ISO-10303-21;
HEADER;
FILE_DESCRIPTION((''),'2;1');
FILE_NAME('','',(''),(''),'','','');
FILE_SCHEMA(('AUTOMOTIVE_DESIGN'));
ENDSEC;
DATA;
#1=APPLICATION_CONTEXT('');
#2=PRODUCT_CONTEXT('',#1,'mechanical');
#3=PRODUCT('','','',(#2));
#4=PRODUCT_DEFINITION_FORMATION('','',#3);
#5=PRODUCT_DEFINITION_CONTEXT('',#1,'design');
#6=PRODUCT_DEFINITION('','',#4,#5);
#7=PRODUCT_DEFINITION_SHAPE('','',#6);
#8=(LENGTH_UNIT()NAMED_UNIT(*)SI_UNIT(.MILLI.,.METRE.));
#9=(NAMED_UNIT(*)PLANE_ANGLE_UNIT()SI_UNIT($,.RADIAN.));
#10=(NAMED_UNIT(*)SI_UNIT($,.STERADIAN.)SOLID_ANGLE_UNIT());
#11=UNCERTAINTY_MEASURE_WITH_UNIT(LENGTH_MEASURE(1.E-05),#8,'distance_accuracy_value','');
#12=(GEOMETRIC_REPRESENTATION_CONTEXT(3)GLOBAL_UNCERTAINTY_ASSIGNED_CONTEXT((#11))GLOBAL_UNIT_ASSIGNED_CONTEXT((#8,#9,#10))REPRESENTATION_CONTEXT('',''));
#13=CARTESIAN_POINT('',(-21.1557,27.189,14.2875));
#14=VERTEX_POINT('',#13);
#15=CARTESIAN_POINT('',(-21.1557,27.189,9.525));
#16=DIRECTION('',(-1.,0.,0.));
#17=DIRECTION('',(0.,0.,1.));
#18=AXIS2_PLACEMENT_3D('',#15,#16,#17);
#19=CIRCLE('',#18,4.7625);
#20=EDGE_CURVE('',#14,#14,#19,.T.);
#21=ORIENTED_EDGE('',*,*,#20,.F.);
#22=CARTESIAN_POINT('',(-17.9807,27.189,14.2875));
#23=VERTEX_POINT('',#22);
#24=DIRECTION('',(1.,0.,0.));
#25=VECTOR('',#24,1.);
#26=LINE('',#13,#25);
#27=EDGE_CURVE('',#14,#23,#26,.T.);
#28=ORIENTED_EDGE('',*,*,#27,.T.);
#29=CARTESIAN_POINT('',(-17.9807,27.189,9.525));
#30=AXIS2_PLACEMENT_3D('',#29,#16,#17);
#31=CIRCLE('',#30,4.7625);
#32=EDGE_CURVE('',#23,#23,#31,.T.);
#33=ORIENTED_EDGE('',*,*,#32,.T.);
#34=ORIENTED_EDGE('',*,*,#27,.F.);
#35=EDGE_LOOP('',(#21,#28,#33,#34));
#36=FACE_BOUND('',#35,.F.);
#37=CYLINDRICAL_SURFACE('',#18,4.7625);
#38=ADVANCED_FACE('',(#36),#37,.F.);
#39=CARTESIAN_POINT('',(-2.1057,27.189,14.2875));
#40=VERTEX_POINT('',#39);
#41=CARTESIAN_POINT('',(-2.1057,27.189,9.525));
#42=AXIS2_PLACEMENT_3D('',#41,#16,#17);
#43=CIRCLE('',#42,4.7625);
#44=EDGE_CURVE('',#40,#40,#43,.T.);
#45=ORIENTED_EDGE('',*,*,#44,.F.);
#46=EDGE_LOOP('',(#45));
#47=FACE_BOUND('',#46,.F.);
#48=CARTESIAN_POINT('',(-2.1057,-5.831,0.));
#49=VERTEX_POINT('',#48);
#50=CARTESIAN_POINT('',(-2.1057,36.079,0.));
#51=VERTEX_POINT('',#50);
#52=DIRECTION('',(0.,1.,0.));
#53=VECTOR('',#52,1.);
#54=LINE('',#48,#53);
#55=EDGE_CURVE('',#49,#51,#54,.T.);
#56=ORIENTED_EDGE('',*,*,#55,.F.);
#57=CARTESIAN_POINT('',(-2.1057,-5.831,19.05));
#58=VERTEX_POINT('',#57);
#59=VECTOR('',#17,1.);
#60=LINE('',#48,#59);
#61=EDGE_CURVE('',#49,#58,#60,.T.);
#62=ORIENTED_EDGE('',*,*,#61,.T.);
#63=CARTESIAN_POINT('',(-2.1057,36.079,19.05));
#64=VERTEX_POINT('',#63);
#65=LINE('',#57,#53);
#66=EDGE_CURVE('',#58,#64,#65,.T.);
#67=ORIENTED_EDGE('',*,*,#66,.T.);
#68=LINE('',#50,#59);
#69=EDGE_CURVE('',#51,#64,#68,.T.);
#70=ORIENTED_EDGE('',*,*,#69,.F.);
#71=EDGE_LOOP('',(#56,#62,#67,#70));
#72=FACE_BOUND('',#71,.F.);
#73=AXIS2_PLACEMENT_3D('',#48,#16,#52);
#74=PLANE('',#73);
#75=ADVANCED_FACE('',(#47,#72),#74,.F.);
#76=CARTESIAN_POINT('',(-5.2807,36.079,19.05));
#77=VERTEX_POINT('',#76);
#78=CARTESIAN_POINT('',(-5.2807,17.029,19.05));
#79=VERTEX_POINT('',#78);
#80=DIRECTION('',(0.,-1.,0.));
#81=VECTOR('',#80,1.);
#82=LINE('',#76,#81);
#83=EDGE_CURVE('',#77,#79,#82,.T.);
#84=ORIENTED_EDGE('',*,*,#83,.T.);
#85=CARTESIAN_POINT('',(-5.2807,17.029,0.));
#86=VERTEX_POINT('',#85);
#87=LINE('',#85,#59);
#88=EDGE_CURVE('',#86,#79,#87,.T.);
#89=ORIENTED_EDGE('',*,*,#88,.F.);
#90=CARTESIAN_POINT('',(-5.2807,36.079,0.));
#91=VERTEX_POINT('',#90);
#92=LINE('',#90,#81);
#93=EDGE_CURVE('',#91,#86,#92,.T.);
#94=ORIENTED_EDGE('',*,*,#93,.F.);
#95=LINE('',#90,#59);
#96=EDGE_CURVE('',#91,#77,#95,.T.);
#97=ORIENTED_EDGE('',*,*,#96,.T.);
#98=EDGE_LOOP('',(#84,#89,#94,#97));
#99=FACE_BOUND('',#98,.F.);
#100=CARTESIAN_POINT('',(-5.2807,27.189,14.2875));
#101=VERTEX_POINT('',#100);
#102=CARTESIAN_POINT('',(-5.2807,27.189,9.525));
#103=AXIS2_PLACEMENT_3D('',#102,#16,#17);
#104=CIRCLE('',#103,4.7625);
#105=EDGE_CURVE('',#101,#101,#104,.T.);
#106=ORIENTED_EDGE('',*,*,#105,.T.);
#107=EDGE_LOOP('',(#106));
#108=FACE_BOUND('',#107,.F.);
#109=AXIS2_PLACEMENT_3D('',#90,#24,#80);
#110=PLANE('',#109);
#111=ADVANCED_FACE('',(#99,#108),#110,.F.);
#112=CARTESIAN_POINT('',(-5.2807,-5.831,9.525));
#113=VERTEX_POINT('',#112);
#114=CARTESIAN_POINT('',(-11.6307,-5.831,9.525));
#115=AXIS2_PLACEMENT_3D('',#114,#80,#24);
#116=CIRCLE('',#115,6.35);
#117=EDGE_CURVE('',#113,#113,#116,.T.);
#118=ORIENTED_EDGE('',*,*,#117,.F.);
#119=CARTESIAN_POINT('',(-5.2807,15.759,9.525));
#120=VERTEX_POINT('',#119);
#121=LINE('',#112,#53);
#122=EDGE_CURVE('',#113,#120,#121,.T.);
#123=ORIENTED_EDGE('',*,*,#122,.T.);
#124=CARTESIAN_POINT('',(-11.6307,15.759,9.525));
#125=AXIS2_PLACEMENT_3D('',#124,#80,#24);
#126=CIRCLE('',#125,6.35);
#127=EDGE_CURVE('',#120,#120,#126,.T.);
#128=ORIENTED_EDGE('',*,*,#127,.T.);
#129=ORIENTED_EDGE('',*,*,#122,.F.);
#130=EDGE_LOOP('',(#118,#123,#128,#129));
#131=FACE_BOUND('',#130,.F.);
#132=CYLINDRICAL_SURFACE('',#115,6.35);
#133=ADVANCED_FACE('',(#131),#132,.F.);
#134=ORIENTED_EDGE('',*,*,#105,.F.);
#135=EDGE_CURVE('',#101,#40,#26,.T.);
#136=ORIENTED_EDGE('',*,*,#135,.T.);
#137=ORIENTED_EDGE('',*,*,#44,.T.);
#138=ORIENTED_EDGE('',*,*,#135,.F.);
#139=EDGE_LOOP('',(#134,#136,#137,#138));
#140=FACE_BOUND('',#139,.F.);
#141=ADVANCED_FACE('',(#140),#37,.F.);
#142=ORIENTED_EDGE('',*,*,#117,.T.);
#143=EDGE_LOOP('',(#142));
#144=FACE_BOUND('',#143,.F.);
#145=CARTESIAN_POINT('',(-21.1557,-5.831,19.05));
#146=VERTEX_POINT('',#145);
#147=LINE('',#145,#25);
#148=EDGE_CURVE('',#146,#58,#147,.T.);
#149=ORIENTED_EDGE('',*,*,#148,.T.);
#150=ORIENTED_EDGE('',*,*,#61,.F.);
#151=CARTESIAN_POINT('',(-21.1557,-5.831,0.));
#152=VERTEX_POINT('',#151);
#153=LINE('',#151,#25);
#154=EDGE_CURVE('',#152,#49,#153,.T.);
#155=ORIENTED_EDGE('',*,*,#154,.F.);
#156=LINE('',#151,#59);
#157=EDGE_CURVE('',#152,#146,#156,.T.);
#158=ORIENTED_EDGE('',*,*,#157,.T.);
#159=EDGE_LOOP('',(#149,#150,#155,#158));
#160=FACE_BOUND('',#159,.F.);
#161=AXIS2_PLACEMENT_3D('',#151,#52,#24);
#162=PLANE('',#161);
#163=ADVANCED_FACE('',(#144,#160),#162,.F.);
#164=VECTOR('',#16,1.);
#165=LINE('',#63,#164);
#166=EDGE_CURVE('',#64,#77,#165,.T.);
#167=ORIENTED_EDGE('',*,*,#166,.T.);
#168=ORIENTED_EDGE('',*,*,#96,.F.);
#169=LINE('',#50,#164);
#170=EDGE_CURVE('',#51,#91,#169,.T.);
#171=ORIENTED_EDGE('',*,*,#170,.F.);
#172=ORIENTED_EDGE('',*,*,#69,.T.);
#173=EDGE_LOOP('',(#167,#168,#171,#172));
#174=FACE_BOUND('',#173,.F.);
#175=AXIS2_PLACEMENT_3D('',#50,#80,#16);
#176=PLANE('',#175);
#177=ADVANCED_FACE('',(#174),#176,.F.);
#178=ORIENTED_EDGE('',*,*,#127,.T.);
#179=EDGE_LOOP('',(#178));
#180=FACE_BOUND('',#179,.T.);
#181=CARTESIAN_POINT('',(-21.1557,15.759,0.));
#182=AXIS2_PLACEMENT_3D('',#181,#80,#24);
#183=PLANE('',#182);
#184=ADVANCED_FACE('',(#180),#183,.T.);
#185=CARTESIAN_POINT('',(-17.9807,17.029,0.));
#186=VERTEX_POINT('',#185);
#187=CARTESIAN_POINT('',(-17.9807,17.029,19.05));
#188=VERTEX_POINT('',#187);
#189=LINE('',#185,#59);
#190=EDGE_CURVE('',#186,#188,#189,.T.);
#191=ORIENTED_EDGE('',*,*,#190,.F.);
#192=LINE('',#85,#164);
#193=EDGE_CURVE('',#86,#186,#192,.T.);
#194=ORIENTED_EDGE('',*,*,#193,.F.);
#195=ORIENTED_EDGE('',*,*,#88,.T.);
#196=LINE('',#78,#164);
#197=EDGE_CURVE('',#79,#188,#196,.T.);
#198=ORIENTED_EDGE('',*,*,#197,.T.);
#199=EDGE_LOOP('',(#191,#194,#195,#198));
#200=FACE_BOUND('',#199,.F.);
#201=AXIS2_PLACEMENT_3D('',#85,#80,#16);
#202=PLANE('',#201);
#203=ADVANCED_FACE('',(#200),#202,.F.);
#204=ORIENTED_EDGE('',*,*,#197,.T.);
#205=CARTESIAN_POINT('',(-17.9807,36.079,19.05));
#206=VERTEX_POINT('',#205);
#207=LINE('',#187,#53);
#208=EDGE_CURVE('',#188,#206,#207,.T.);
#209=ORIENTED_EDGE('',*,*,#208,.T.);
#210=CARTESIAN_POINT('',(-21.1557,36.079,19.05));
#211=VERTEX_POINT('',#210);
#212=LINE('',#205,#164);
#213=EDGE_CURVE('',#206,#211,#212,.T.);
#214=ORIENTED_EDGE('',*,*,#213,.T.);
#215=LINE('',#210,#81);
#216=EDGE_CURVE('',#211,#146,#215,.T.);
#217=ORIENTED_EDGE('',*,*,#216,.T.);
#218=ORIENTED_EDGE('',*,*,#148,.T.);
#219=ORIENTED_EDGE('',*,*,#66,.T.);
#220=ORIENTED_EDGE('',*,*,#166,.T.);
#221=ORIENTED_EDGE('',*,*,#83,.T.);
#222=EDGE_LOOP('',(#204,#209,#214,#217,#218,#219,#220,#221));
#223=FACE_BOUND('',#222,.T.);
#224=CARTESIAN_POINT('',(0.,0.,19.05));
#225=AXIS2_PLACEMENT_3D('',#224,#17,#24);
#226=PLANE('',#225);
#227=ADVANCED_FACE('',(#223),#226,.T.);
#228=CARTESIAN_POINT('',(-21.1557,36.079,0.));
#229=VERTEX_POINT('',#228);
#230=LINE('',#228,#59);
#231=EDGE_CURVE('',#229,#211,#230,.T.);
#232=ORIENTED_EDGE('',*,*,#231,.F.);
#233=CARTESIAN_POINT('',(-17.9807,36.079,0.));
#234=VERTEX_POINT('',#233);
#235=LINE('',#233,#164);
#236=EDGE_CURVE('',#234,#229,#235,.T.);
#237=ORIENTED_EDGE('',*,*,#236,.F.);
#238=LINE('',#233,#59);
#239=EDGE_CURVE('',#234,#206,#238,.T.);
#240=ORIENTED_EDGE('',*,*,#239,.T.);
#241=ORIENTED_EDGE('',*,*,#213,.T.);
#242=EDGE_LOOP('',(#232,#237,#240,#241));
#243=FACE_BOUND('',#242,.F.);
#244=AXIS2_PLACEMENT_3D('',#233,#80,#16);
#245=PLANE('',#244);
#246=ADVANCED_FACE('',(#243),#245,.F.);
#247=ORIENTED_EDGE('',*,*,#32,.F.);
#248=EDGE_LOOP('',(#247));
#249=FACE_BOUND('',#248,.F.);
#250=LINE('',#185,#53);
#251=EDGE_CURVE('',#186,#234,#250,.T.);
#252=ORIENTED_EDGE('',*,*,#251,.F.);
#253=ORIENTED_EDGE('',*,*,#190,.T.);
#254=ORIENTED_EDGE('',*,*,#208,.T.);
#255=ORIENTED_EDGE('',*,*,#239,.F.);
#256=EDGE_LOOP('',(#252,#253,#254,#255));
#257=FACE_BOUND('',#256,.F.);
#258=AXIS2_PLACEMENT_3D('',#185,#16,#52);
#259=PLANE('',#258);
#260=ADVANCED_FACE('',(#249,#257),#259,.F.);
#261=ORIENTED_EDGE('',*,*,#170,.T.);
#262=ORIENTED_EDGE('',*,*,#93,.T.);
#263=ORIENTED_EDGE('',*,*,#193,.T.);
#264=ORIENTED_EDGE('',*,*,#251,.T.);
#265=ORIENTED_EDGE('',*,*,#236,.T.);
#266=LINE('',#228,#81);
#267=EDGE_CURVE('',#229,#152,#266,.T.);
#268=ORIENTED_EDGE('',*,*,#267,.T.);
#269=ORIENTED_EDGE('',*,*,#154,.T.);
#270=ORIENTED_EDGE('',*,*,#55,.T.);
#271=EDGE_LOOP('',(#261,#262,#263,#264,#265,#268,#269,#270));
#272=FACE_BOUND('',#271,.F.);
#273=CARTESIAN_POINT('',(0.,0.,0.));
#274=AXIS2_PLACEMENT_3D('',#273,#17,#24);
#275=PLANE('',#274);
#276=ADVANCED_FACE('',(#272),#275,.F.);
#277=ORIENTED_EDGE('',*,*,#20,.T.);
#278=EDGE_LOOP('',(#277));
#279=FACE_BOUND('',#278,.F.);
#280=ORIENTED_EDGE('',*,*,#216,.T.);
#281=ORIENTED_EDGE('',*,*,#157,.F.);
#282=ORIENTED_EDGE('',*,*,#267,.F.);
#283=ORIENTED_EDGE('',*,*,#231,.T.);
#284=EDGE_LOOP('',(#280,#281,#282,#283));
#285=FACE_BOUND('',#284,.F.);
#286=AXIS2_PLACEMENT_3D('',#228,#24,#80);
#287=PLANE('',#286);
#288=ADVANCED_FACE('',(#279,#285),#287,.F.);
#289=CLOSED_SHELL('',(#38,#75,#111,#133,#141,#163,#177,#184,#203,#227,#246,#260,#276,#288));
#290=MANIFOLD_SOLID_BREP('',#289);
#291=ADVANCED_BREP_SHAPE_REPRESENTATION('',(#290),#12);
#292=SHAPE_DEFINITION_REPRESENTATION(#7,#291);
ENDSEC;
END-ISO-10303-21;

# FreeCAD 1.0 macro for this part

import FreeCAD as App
import Part
import Sketcher
Q = App.Units.Quantity

doc = App.newDocument("Part")
params = doc.addObject("Spreadsheet::Sheet", "Params")
for row, (alias, value) in enumerate([
    ("sketch1_width", "0.5 in"),
    ("sketch1_width2", "0.75 in"),
    ("sketch1_height", "1.65 in"),
    ("pad1_length", "0.75 in"),
    ("sketch2_diameter", "0.5 in"),
    ("pocket1_length", "0.85 in"),
    ("sketch3_diameter", "0.375 in"),
], start=1):
    params.set(f"A{row}", alias)
    params.set(f"B{row}", "=" + value)
    params.setAlias(f"B{row}", alias)

body = doc.addObject("PartDesign::Body", "Body")

# Sketch on XY plane
sketch1 = body.newObject("Sketcher::SketchObject", "Sketch")
sketch1.AttachmentSupport = (doc.getObject("XY_Plane"), [""])
sketch1.MapMode = "FlatFace"
sketch1.addGeometry([
    Part.LineSegment(App.Vector(-18, 36.1, 0), App.Vector(-21.2, 36.1, 0)),  # 0
    Part.LineSegment(App.Vector(-21.2, 36.1, 0), App.Vector(-21.2, -5.8, 0)),  # 1
    Part.LineSegment(App.Vector(-21.2, -5.8, 0), App.Vector(-2.1, -5.8, 0)),  # 2
    Part.LineSegment(App.Vector(-2.1, -5.8, 0), App.Vector(-2.1, 36.1, 0)),  # 3
    Part.LineSegment(App.Vector(-2.1, 36.1, 0), App.Vector(-5.3, 36.1, 0)),  # 4
    Part.LineSegment(App.Vector(-5.3, 36.1, 0), App.Vector(-5.3, 17, 0)),  # 5
    Part.LineSegment(App.Vector(-5.3, 17, 0), App.Vector(-18, 17, 0)),  # 6
    Part.LineSegment(App.Vector(-18, 17, 0), App.Vector(-18, 36.1, 0)),  # 7
], False)
sketch1.addConstraint([
    Sketcher.Constraint("Coincident", 0, 2, 1, 1),
    Sketcher.Constraint("Coincident", 1, 2, 2, 1),
    Sketcher.Constraint("Coincident", 2, 2, 3, 1),
    Sketcher.Constraint("Coincident", 3, 2, 4, 1),
    Sketcher.Constraint("Coincident", 4, 2, 5, 1),
    Sketcher.Constraint("Coincident", 5, 2, 6, 1),
    Sketcher.Constraint("Coincident", 6, 2, 7, 1),
    Sketcher.Constraint("Coincident", 7, 2, 0, 1),
    Sketcher.Constraint("Horizontal", 0),
    Sketcher.Constraint("Vertical", 1),
    Sketcher.Constraint("Horizontal", 2),
    Sketcher.Constraint("Vertical", 3),
    Sketcher.Constraint("Horizontal", 4),
    Sketcher.Constraint("Vertical", 5),
    Sketcher.Constraint("Horizontal", 6),
    Sketcher.Constraint("Vertical", 7),
    Sketcher.Constraint("Horizontal", 0, 2, 3, 2),
    Sketcher.Constraint("Equal", 0, 4),
    Sketcher.Constraint("Equal", 2, 5),
    Sketcher.Constraint("DistanceX", 6, 2, 6, 1, Q("0.5 in")),
    Sketcher.Constraint("DistanceX", 2, 1, 2, 2, Q("0.75 in")),
    Sketcher.Constraint("DistanceY", 1, 2, 1, 1, Q("1.65 in")),
    Sketcher.Constraint("DistanceX", 0, 2, -1, 1, Q("0.8329 in")),
    Sketcher.Constraint("DistanceY", -1, 1, 0, 2, 36.079),
])
sketch1.setExpression("Constraints[19]", "Params.sketch1_width")
sketch1.setExpression("Constraints[20]", "Params.sketch1_width2")
sketch1.setExpression("Constraints[21]", "Params.sketch1_height")
pad1 = body.newObject("PartDesign::Pad", "Pad")
pad1.Profile = sketch1
pad1.setExpression("Length", "Params.pad1_length")

# Sketch on XZ plane
sketch2 = body.newObject("Sketcher::SketchObject", "Sketch001")
sketch2.AttachmentSupport = (doc.getObject("XZ_Plane"), [""])
sketch2.MapMode = "FlatFace"
sketch2.AttachmentOffset = App.Placement(App.Vector(0, 0, 5.831), App.Rotation())
sketch2.addGeometry(Part.Circle(App.Vector(-12, 10, 0), App.Vector(0, 0, 1), 6), False)
sketch2.addConstraint([
    Sketcher.Constraint("Diameter", 0, Q("0.5 in")),
    Sketcher.Constraint("DistanceY", -1, 1, 0, 3, Q("0.375 in")),
    Sketcher.Constraint("DistanceX", 0, 3, -1, 1, Q("0.4579 in")),
])
sketch2.setExpression("Constraints[0]", "Params.sketch2_diameter")
pocket1 = body.newObject("PartDesign::Pocket", "Pocket")
pocket1.Profile = sketch2
pocket1.setExpression("Length", "Params.pocket1_length")

# Sketch on YZ plane
sketch3 = body.newObject("Sketcher::SketchObject", "Sketch002")
sketch3.AttachmentSupport = (doc.getObject("YZ_Plane"), [""])
sketch3.MapMode = "FlatFace"
sketch3.AttachmentOffset = App.Placement(App.Vector(0, 0, -0.8329016 * 25.4), App.Rotation())
sketch3.addGeometry(Part.Circle(App.Vector(27.2, 9.5, 0), App.Vector(0, 0, 1), 4.8), False)
sketch3.addConstraint([
    Sketcher.Constraint("Diameter", 0, Q("0.375 in")),
    Sketcher.Constraint("DistanceY", -1, 1, 0, 3, Q("0.375 in")),
    Sketcher.Constraint("DistanceX", -1, 1, 0, 3, 27.189),
])
sketch3.setExpression("Constraints[0]", "Params.sketch3_diameter")
pocket2 = body.newObject("PartDesign::Pocket", "Pocket001")
pocket2.Profile = sketch3
pocket2.Type = "ThroughAll"
pocket2.Reversed = True

doc.recompute()
